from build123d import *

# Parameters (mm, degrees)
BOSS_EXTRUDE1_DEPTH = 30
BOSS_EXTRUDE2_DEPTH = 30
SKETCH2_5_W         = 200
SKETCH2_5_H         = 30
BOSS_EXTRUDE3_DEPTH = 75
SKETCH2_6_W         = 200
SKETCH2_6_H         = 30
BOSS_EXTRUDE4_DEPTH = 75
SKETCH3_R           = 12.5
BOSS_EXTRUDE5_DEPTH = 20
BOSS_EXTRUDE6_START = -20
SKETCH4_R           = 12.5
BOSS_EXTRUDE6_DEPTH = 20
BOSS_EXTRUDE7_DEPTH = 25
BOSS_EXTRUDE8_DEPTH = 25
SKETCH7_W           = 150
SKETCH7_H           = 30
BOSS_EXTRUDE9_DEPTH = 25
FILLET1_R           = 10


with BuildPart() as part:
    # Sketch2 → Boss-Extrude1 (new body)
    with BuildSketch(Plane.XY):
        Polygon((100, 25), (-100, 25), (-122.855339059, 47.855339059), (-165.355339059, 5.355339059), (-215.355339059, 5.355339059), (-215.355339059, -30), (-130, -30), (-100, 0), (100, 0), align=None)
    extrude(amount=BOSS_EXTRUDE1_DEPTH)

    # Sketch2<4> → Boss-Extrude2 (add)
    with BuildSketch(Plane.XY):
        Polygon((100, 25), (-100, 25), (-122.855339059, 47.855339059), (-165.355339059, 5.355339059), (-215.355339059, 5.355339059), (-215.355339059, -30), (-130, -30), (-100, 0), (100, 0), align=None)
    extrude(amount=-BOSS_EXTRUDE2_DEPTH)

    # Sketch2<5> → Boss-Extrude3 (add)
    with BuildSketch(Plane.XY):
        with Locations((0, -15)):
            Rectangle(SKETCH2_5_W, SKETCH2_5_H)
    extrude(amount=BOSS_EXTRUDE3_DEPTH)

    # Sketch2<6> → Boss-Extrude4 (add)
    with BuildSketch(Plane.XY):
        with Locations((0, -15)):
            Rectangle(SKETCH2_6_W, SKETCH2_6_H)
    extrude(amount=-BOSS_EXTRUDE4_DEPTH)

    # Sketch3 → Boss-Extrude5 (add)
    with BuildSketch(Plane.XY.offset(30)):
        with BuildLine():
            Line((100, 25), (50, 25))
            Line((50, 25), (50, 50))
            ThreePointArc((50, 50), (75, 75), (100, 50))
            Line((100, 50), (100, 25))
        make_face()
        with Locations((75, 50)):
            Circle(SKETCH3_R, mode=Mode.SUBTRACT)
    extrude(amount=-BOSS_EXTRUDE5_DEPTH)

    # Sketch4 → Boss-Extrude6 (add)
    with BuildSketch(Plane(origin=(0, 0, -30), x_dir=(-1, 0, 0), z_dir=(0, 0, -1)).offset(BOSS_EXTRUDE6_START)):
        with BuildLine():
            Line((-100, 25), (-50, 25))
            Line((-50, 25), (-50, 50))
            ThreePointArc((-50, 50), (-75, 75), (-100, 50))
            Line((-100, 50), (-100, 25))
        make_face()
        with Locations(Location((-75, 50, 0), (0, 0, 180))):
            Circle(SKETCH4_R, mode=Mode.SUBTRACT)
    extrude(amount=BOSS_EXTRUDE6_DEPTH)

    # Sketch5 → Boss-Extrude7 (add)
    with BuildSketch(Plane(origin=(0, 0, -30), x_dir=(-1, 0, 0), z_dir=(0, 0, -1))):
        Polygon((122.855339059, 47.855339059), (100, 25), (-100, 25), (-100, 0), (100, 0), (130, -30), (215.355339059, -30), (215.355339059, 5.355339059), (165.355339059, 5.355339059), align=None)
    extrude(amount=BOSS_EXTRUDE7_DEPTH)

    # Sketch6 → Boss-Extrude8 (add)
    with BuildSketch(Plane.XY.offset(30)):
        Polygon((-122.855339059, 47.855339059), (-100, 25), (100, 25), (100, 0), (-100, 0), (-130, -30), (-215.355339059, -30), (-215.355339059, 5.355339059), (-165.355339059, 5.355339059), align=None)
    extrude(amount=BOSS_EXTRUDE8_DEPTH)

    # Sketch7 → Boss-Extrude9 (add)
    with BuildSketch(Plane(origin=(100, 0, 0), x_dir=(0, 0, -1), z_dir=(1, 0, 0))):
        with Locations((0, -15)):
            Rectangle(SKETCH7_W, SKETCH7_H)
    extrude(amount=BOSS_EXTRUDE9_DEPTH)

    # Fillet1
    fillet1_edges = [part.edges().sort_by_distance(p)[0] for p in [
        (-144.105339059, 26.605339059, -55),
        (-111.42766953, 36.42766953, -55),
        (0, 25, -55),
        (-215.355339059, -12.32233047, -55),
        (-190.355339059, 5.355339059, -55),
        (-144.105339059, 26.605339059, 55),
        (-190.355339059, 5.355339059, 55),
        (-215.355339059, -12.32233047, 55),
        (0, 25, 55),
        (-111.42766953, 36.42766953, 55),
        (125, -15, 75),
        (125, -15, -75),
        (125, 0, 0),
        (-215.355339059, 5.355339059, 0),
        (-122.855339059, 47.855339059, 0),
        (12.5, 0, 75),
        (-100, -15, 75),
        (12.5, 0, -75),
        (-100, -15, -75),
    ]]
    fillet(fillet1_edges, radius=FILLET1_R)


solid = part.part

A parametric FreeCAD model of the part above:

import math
import FreeCAD as App
import Part
import Sketcher
from FreeCAD import Vector
Q = App.Units.Quantity


def edges_at(feature, points):
    """Names of the edges that pass closest to the given points."""
    edges = feature.Shape.Edges
    near = lambda p: min(range(len(edges)), key=lambda i: edges[i].distToShape(Part.Vertex(*p))[0])
    return sorted({f"Edge{near(p) + 1}" for p in points})


def add_polygon(sketch, points):
    """Adds a closed chain of lines whose ends are joined by coincident constraints."""
    first, n = sketch.GeometryCount, len(points)
    for a, b in zip(points, points[1:] + points[:1]):
        sketch.addGeometry(Part.LineSegment(App.Vector(*a, 0), App.Vector(*b, 0)), False)
    for i in range(n):
        sketch.addConstraint(Sketcher.Constraint("Coincident", first + i, 2, first + (i + 1) % n, 1))

doc = App.newDocument("Part")
body = doc.addObject("PartDesign::Body", "Body")

# Sketch on XY plane
sketch1 = body.newObject("Sketcher::SketchObject", "Sketch")
sketch1.AttachmentSupport = (doc.getObject("XY_Plane"), [""])
sketch1.MapMode = "FlatFace"
add_polygon(sketch1, [(100, 25), (-100, 25), (-123, 48), (-165, 5), (-215, 5), (-215, -30), (-130, -30), (-100, 0), (100, 0)])  # lines 0-8
sketch1.addConstraint(Sketcher.Constraint("Horizontal", 0))
sketch1.addConstraint(Sketcher.Constraint("Horizontal", 3))
sketch1.addConstraint(Sketcher.Constraint("Vertical", 4))
sketch1.addConstraint(Sketcher.Constraint("Horizontal", 5))
sketch1.addConstraint(Sketcher.Constraint("Horizontal", 7))
sketch1.addConstraint(Sketcher.Constraint("Vertical", 8))
sketch1.addConstraint(Sketcher.Constraint("Symmetric", 6, 2, 7, 2, -1, 1))
sketch1.addConstraint(Sketcher.Constraint("Perpendicular", 1, 2))
sketch1.addConstraint(Sketcher.Constraint("Parallel", 2, 6))
sketch1.addConstraint(Sketcher.Constraint("Vertical", 0, 2, 6, 2))
sketch1.addConstraint(Sketcher.Constraint("DistanceX", 0, 2, 0, 1, Q("200 mm")))
sketch1.addConstraint(Sketcher.Constraint("DistanceX", 3, 2, 3, 1, Q("50 mm")))
sketch1.addConstraint(Sketcher.Constraint("DistanceY", 8, 1, 8, 2, Q("25 mm")))
sketch1.addConstraint(Sketcher.Constraint("Angle", 1, Q("135 deg")))
sketch1.addConstraint(Sketcher.Constraint("DistanceY", 4, 2, -1, 1, Q("30 mm")))
sketch1.addConstraint(Sketcher.Constraint("DistanceX", 2, 2, 1, 2, Q("42.5 mm")))
sketch1.addConstraint(Sketcher.Constraint("DistanceX", 5, 1, 5, 2, Q("85.355339 mm")))
pad1 = body.newObject("PartDesign::Pad", "Pad")
pad1.Profile = sketch1
pad1.Length = 30

# Sketch on XY plane
sketch2 = body.newObject("Sketcher::SketchObject", "Sketch001")
sketch2.AttachmentSupport = (doc.getObject("XY_Plane"), [""])
sketch2.MapMode = "FlatFace"
add_polygon(sketch2, [(100, 25), (-100, 25), (-123, 48), (-165, 5), (-215, 5), (-215, -30), (-130, -30), (-100, 0), (100, 0)])  # lines 0-8
sketch2.addConstraint(Sketcher.Constraint("Horizontal", 0))
sketch2.addConstraint(Sketcher.Constraint("Horizontal", 3))
sketch2.addConstraint(Sketcher.Constraint("Vertical", 4))
sketch2.addConstraint(Sketcher.Constraint("Horizontal", 5))
sketch2.addConstraint(Sketcher.Constraint("Horizontal", 7))
sketch2.addConstraint(Sketcher.Constraint("Vertical", 8))
sketch2.addConstraint(Sketcher.Constraint("Symmetric", 6, 2, 7, 2, -1, 1))
sketch2.addConstraint(Sketcher.Constraint("Perpendicular", 1, 2))
sketch2.addConstraint(Sketcher.Constraint("Parallel", 2, 6))
sketch2.addConstraint(Sketcher.Constraint("Vertical", 0, 2, 6, 2))
sketch2.addConstraint(Sketcher.Constraint("DistanceX", 0, 2, 0, 1, Q("200 mm")))
sketch2.addConstraint(Sketcher.Constraint("DistanceX", 3, 2, 3, 1, Q("50 mm")))
sketch2.addConstraint(Sketcher.Constraint("DistanceY", 8, 1, 8, 2, Q("25 mm")))
sketch2.addConstraint(Sketcher.Constraint("Angle", 1, Q("135 deg")))
sketch2.addConstraint(Sketcher.Constraint("DistanceY", 4, 2, -1, 1, Q("30 mm")))
sketch2.addConstraint(Sketcher.Constraint("DistanceX", 2, 2, 1, 2, Q("42.5 mm")))
sketch2.addConstraint(Sketcher.Constraint("DistanceX", 5, 1, 5, 2, Q("85.355339 mm")))
pad2 = body.newObject("PartDesign::Pad", "Pad001")
pad2.Profile = sketch2
pad2.Length = 30
pad2.Reversed = True

# Sketch on XY plane
sketch3 = body.newObject("Sketcher::SketchObject", "Sketch002")
sketch3.AttachmentSupport = (doc.getObject("XY_Plane"), [""])
sketch3.MapMode = "FlatFace"
add_polygon(sketch3, [(-100, 0), (-100, -30), (100, -30), (100, 0)])  # lines 0-3
sketch3.addConstraint(Sketcher.Constraint("Vertical", 0))
sketch3.addConstraint(Sketcher.Constraint("Horizontal", 1))
sketch3.addConstraint(Sketcher.Constraint("Vertical", 2))
sketch3.addConstraint(Sketcher.Constraint("Horizontal", 3))
sketch3.addConstraint(Sketcher.Constraint("Symmetric", 2, 2, 3, 2, -1, 1))
sketch3.addConstraint(Sketcher.Constraint("DistanceX", 1, 1, 1, 2, Q("200 mm")))
sketch3.addConstraint(Sketcher.Constraint("DistanceY", 0, 2, 0, 1, Q("30 mm")))
pad3 = body.newObject("PartDesign::Pad", "Pad002")
pad3.Profile = sketch3
pad3.Length = 75

# Sketch on XY plane
sketch4 = body.newObject("Sketcher::SketchObject", "Sketch003")
sketch4.AttachmentSupport = (doc.getObject("XY_Plane"), [""])
sketch4.MapMode = "FlatFace"
add_polygon(sketch4, [(-100, 0), (-100, -30), (100, -30), (100, 0)])  # lines 0-3
sketch4.addConstraint(Sketcher.Constraint("Vertical", 0))
sketch4.addConstraint(Sketcher.Constraint("Horizontal", 1))
sketch4.addConstraint(Sketcher.Constraint("Vertical", 2))
sketch4.addConstraint(Sketcher.Constraint("Horizontal", 3))
sketch4.addConstraint(Sketcher.Constraint("Symmetric", 2, 2, 3, 2, -1, 1))
sketch4.addConstraint(Sketcher.Constraint("DistanceX", 1, 1, 1, 2, Q("200 mm")))
sketch4.addConstraint(Sketcher.Constraint("DistanceY", 0, 2, 0, 1, Q("30 mm")))
pad4 = body.newObject("PartDesign::Pad", "Pad003")
pad4.Profile = sketch4
pad4.Length = 75
pad4.Reversed = True

# Sketch on XY plane
sketch5 = body.newObject("Sketcher::SketchObject", "Sketch004")
sketch5.AttachmentSupport = (doc.getObject("XY_Plane"), [""])
sketch5.MapMode = "FlatFace"
sketch5.AttachmentOffset = App.Placement(Vector(0, 0, 30), App.Rotation())
sketch5.addGeometry(Part.LineSegment(Vector(50, 25, 0), Vector(100, 25, 0)), False)
sketch5.addGeometry(Part.LineSegment(Vector(100, 25, 0), Vector(100, 50, 0)), False)
sketch5.addGeometry(Part.ArcOfCircle(Part.Circle(Vector(75, 50, 0), Vector(0, 0, 1), 25), math.radians(0), math.radians(180)), False)
sketch5.addGeometry(Part.LineSegment(Vector(50, 50, 0), Vector(50, 25, 0)), False)
sketch5.addGeometry(Part.Circle(Vector(75, 50, 0), Vector(0, 0, 1), 12), False)
sketch5.addConstraint(Sketcher.Constraint("Coincident", 0, 2, 1, 1))
sketch5.addConstraint(Sketcher.Constraint("Tangent", 1, 2, 2, 1))
sketch5.addConstraint(Sketcher.Constraint("Tangent", 2, 2, 3, 1))
sketch5.addConstraint(Sketcher.Constraint("Coincident", 3, 2, 0, 1))
sketch5.addConstraint(Sketcher.Constraint("Horizontal", 0))
sketch5.addConstraint(Sketcher.Constraint("Vertical", 1))
sketch5.addConstraint(Sketcher.Constraint("Vertical", 3))
sketch5.addConstraint(Sketcher.Constraint("Coincident", 4, 3, 2, 3))
sketch5.addConstraint(Sketcher.Constraint("Diameter", 4, Q("25 mm")))
sketch5.addConstraint(Sketcher.Constraint("Radius", 2, Q("25 mm")))
sketch5.addConstraint(Sketcher.Constraint("DistanceY", 1, 1, 1, 2, Q("25 mm")))
sketch5.addConstraint(Sketcher.Constraint("DistanceX", -1, 1, 2, 3, Q("75 mm")))
sketch5.addConstraint(Sketcher.Constraint("DistanceY", -1, 1, 2, 3, Q("50 mm")))
pad5 = body.newObject("PartDesign::Pad", "Pad004")
pad5.Profile = sketch5
pad5.Length = 20
pad5.Reversed = True

# Sketch on XY plane
sketch6 = body.newObject("Sketcher::SketchObject", "Sketch005")
sketch6.AttachmentSupport = (doc.getObject("XY_Plane"), [""])
sketch6.MapMode = "FlatFace"
sketch6.AttachmentOffset = App.Placement(Vector(0, 0, -10), App.Rotation())
sketch6.addGeometry(Part.LineSegment(Vector(100, 25, 0), Vector(50, 25, 0)), False)
sketch6.addGeometry(Part.LineSegment(Vector(50, 25, 0), Vector(50, 50, 0)), False)
sketch6.addGeometry(Part.ArcOfCircle(Part.Circle(Vector(75, 50, 0), Vector(0, 0, 1), 25), math.radians(0), math.radians(180)), False)
sketch6.addGeometry(Part.LineSegment(Vector(100, 50, 0), Vector(100, 25, 0)), False)
sketch6.addGeometry(Part.Circle(Vector(75, 50, 0), Vector(0, 0, 1), 12), False)
sketch6.addConstraint(Sketcher.Constraint("Coincident", 0, 2, 1, 1))
sketch6.addConstraint(Sketcher.Constraint("Tangent", 1, 2, 2, 2))
sketch6.addConstraint(Sketcher.Constraint("Tangent", 2, 1, 3, 1))
sketch6.addConstraint(Sketcher.Constraint("Coincident", 3, 2, 0, 1))
sketch6.addConstraint(Sketcher.Constraint("Horizontal", 0))
sketch6.addConstraint(Sketcher.Constraint("Vertical", 1))
sketch6.addConstraint(Sketcher.Constraint("Vertical", 3))
sketch6.addConstraint(Sketcher.Constraint("Coincident", 4, 3, 2, 3))
sketch6.addConstraint(Sketcher.Constraint("Diameter", 4, Q("25 mm")))
sketch6.addConstraint(Sketcher.Constraint("Radius", 2, Q("25 mm")))
sketch6.addConstraint(Sketcher.Constraint("DistanceY", 1, 1, 1, 2, Q("25 mm")))
sketch6.addConstraint(Sketcher.Constraint("DistanceX", -1, 1, 2, 3, Q("75 mm")))
sketch6.addConstraint(Sketcher.Constraint("DistanceY", -1, 1, 2, 3, Q("50 mm")))
pad6 = body.newObject("PartDesign::Pad", "Pad005")
pad6.Profile = sketch6
pad6.Length = 20
pad6.Reversed = True

# Sketch on XY plane
sketch7 = body.newObject("Sketcher::SketchObject", "Sketch006")
sketch7.AttachmentSupport = (doc.getObject("XY_Plane"), [""])
sketch7.MapMode = "FlatFace"
sketch7.AttachmentOffset = App.Placement(Vector(0, 0, -30), App.Rotation())
add_polygon(sketch7, [(-123, 48), (-100, 25), (100, 25), (100, 0), (-100, 0), (-130, -30), (-215, -30), (-215, 5), (-165, 5)])  # lines 0-8
sketch7.addConstraint(Sketcher.Constraint("Horizontal", 1))
sketch7.addConstraint(Sketcher.Constraint("Vertical", 2))
sketch7.addConstraint(Sketcher.Constraint("Horizontal", 3))
sketch7.addConstraint(Sketcher.Constraint("Horizontal", 5))
sketch7.addConstraint(Sketcher.Constraint("Vertical", 6))
sketch7.addConstraint(Sketcher.Constraint("Horizontal", 7))
sketch7.addConstraint(Sketcher.Constraint("Symmetric", 2, 2, 3, 2, -1, 1))
sketch7.addConstraint(Sketcher.Constraint("Perpendicular", 0, 4))
sketch7.addConstraint(Sketcher.Constraint("Parallel", 4, 8))
sketch7.addConstraint(Sketcher.Constraint("Vertical", 0, 2, 3, 2))
sketch7.addConstraint(Sketcher.Constraint("DistanceX", 1, 1, 1, 2, Q("200 mm")))
sketch7.addConstraint(Sketcher.Constraint("DistanceX", 7, 1, 7, 2, Q("50 mm")))
sketch7.addConstraint(Sketcher.Constraint("DistanceY", 2, 2, 2, 1, Q("25 mm")))
sketch7.addConstraint(Sketcher.Constraint("Angle", 0, Q("-45 deg")))
sketch7.addConstraint(Sketcher.Constraint("DistanceX", 4, 2, -1, 1, Q("130 mm")))
sketch7.addConstraint(Sketcher.Constraint("DistanceX", 7, 2, 8, 2, Q("42.5 mm")))
sketch7.addConstraint(Sketcher.Constraint("DistanceX", 5, 2, 5, 1, Q("85.355339 mm")))
pad7 = body.newObject("PartDesign::Pad", "Pad006")
pad7.Profile = sketch7
pad7.Length = 25
pad7.Reversed = True

# Sketch on XY plane
sketch8 = body.newObject("Sketcher::SketchObject", "Sketch007")
sketch8.AttachmentSupport = (doc.getObject("XY_Plane"), [""])
sketch8.MapMode = "FlatFace"
sketch8.AttachmentOffset = App.Placement(Vector(0, 0, 30), App.Rotation())
add_polygon(sketch8, [(-100, 25), (-123, 48), (-165, 5), (-215, 5), (-215, -30), (-130, -30), (-100, 0), (100, 0), (100, 25)])  # lines 0-8
sketch8.addConstraint(Sketcher.Constraint("Horizontal", 2))
sketch8.addConstraint(Sketcher.Constraint("Vertical", 3))
sketch8.addConstraint(Sketcher.Constraint("Horizontal", 4))
sketch8.addConstraint(Sketcher.Constraint("Horizontal", 6))
sketch8.addConstraint(Sketcher.Constraint("Vertical", 7))
sketch8.addConstraint(Sketcher.Constraint("Horizontal", 8))
sketch8.addConstraint(Sketcher.Constraint("Symmetric", 5, 2, 6, 2, -1, 1))
sketch8.addConstraint(Sketcher.Constraint("Perpendicular", 0, 1))
sketch8.addConstraint(Sketcher.Constraint("Parallel", 1, 5))
sketch8.addConstraint(Sketcher.Constraint("Vertical", 5, 2, 8, 2))
sketch8.addConstraint(Sketcher.Constraint("DistanceX", 2, 2, 2, 1, Q("50 mm")))
sketch8.addConstraint(Sketcher.Constraint("DistanceX", 6, 1, 6, 2, Q("200 mm")))
sketch8.addConstraint(Sketcher.Constraint("DistanceY", 7, 1, 7, 2, Q("25 mm")))
sketch8.addConstraint(Sketcher.Constraint("Angle", 0, Q("135 deg")))
sketch8.addConstraint(Sketcher.Constraint("DistanceY", 3, 2, -1, 1, Q("30 mm")))
sketch8.addConstraint(Sketcher.Constraint("DistanceX", 1, 2, 0, 2, Q("42.5 mm")))
sketch8.addConstraint(Sketcher.Constraint("DistanceX", 4, 1, 4, 2, Q("85.355339 mm")))
pad8 = body.newObject("PartDesign::Pad", "Pad007")
pad8.Profile = sketch8
pad8.Length = 25

# Sketch on YZ plane
sketch9 = body.newObject("Sketcher::SketchObject", "Sketch008")
sketch9.AttachmentSupport = (doc.getObject("YZ_Plane"), [""])
sketch9.MapMode = "FlatFace"
sketch9.AttachmentOffset = App.Placement(Vector(0, 0, 100), App.Rotation())
add_polygon(sketch9, [(0, 75), (-30, 75), (-30, -75), (0, -75)])  # lines 0-3
sketch9.addConstraint(Sketcher.Constraint("Horizontal", 0))
sketch9.addConstraint(Sketcher.Constraint("Vertical", 1))
sketch9.addConstraint(Sketcher.Constraint("Horizontal", 2))
sketch9.addConstraint(Sketcher.Constraint("Vertical", 3))
sketch9.addConstraint(Sketcher.Constraint("Symmetric", 2, 2, 3, 2, -1, 1))
sketch9.addConstraint(Sketcher.Constraint("DistanceX", 0, 2, 0, 1, Q("30 mm")))
sketch9.addConstraint(Sketcher.Constraint("DistanceY", 1, 2, 1, 1, Q("150 mm")))
pad9 = body.newObject("PartDesign::Pad", "Pad008")
pad9.Profile = sketch9
pad9.Length = 25
doc.recompute()

fillet = body.newObject("PartDesign::Fillet", "Fillet")
fillet.Base = (pad9, edges_at(pad9, [
    (-144.105, 26.605, -55),
    (-111.428, 36.428, -55),
    (0, 25, -55),
    (-215.355, -12.322, -55),
    (-190.355, 5.355, -55),
    (-144.105, 26.605, 55),
    (-190.355, 5.355, 55),
    (-215.355, -12.322, 55),
    (0, 25, 55),
    (-111.428, 36.428, 55),
    (125, -15, 75),
    (125, -15, -75),
    (125, 0, 0),
    (-215.355, 5.355, 0),
    (-122.855, 47.855, 0),
    (12.5, 0, 75),
    (-100, -15, 75),
    (12.5, 0, -75),
    (-100, -15, -75),
]))
fillet.Radius = 10

doc.recompute()
